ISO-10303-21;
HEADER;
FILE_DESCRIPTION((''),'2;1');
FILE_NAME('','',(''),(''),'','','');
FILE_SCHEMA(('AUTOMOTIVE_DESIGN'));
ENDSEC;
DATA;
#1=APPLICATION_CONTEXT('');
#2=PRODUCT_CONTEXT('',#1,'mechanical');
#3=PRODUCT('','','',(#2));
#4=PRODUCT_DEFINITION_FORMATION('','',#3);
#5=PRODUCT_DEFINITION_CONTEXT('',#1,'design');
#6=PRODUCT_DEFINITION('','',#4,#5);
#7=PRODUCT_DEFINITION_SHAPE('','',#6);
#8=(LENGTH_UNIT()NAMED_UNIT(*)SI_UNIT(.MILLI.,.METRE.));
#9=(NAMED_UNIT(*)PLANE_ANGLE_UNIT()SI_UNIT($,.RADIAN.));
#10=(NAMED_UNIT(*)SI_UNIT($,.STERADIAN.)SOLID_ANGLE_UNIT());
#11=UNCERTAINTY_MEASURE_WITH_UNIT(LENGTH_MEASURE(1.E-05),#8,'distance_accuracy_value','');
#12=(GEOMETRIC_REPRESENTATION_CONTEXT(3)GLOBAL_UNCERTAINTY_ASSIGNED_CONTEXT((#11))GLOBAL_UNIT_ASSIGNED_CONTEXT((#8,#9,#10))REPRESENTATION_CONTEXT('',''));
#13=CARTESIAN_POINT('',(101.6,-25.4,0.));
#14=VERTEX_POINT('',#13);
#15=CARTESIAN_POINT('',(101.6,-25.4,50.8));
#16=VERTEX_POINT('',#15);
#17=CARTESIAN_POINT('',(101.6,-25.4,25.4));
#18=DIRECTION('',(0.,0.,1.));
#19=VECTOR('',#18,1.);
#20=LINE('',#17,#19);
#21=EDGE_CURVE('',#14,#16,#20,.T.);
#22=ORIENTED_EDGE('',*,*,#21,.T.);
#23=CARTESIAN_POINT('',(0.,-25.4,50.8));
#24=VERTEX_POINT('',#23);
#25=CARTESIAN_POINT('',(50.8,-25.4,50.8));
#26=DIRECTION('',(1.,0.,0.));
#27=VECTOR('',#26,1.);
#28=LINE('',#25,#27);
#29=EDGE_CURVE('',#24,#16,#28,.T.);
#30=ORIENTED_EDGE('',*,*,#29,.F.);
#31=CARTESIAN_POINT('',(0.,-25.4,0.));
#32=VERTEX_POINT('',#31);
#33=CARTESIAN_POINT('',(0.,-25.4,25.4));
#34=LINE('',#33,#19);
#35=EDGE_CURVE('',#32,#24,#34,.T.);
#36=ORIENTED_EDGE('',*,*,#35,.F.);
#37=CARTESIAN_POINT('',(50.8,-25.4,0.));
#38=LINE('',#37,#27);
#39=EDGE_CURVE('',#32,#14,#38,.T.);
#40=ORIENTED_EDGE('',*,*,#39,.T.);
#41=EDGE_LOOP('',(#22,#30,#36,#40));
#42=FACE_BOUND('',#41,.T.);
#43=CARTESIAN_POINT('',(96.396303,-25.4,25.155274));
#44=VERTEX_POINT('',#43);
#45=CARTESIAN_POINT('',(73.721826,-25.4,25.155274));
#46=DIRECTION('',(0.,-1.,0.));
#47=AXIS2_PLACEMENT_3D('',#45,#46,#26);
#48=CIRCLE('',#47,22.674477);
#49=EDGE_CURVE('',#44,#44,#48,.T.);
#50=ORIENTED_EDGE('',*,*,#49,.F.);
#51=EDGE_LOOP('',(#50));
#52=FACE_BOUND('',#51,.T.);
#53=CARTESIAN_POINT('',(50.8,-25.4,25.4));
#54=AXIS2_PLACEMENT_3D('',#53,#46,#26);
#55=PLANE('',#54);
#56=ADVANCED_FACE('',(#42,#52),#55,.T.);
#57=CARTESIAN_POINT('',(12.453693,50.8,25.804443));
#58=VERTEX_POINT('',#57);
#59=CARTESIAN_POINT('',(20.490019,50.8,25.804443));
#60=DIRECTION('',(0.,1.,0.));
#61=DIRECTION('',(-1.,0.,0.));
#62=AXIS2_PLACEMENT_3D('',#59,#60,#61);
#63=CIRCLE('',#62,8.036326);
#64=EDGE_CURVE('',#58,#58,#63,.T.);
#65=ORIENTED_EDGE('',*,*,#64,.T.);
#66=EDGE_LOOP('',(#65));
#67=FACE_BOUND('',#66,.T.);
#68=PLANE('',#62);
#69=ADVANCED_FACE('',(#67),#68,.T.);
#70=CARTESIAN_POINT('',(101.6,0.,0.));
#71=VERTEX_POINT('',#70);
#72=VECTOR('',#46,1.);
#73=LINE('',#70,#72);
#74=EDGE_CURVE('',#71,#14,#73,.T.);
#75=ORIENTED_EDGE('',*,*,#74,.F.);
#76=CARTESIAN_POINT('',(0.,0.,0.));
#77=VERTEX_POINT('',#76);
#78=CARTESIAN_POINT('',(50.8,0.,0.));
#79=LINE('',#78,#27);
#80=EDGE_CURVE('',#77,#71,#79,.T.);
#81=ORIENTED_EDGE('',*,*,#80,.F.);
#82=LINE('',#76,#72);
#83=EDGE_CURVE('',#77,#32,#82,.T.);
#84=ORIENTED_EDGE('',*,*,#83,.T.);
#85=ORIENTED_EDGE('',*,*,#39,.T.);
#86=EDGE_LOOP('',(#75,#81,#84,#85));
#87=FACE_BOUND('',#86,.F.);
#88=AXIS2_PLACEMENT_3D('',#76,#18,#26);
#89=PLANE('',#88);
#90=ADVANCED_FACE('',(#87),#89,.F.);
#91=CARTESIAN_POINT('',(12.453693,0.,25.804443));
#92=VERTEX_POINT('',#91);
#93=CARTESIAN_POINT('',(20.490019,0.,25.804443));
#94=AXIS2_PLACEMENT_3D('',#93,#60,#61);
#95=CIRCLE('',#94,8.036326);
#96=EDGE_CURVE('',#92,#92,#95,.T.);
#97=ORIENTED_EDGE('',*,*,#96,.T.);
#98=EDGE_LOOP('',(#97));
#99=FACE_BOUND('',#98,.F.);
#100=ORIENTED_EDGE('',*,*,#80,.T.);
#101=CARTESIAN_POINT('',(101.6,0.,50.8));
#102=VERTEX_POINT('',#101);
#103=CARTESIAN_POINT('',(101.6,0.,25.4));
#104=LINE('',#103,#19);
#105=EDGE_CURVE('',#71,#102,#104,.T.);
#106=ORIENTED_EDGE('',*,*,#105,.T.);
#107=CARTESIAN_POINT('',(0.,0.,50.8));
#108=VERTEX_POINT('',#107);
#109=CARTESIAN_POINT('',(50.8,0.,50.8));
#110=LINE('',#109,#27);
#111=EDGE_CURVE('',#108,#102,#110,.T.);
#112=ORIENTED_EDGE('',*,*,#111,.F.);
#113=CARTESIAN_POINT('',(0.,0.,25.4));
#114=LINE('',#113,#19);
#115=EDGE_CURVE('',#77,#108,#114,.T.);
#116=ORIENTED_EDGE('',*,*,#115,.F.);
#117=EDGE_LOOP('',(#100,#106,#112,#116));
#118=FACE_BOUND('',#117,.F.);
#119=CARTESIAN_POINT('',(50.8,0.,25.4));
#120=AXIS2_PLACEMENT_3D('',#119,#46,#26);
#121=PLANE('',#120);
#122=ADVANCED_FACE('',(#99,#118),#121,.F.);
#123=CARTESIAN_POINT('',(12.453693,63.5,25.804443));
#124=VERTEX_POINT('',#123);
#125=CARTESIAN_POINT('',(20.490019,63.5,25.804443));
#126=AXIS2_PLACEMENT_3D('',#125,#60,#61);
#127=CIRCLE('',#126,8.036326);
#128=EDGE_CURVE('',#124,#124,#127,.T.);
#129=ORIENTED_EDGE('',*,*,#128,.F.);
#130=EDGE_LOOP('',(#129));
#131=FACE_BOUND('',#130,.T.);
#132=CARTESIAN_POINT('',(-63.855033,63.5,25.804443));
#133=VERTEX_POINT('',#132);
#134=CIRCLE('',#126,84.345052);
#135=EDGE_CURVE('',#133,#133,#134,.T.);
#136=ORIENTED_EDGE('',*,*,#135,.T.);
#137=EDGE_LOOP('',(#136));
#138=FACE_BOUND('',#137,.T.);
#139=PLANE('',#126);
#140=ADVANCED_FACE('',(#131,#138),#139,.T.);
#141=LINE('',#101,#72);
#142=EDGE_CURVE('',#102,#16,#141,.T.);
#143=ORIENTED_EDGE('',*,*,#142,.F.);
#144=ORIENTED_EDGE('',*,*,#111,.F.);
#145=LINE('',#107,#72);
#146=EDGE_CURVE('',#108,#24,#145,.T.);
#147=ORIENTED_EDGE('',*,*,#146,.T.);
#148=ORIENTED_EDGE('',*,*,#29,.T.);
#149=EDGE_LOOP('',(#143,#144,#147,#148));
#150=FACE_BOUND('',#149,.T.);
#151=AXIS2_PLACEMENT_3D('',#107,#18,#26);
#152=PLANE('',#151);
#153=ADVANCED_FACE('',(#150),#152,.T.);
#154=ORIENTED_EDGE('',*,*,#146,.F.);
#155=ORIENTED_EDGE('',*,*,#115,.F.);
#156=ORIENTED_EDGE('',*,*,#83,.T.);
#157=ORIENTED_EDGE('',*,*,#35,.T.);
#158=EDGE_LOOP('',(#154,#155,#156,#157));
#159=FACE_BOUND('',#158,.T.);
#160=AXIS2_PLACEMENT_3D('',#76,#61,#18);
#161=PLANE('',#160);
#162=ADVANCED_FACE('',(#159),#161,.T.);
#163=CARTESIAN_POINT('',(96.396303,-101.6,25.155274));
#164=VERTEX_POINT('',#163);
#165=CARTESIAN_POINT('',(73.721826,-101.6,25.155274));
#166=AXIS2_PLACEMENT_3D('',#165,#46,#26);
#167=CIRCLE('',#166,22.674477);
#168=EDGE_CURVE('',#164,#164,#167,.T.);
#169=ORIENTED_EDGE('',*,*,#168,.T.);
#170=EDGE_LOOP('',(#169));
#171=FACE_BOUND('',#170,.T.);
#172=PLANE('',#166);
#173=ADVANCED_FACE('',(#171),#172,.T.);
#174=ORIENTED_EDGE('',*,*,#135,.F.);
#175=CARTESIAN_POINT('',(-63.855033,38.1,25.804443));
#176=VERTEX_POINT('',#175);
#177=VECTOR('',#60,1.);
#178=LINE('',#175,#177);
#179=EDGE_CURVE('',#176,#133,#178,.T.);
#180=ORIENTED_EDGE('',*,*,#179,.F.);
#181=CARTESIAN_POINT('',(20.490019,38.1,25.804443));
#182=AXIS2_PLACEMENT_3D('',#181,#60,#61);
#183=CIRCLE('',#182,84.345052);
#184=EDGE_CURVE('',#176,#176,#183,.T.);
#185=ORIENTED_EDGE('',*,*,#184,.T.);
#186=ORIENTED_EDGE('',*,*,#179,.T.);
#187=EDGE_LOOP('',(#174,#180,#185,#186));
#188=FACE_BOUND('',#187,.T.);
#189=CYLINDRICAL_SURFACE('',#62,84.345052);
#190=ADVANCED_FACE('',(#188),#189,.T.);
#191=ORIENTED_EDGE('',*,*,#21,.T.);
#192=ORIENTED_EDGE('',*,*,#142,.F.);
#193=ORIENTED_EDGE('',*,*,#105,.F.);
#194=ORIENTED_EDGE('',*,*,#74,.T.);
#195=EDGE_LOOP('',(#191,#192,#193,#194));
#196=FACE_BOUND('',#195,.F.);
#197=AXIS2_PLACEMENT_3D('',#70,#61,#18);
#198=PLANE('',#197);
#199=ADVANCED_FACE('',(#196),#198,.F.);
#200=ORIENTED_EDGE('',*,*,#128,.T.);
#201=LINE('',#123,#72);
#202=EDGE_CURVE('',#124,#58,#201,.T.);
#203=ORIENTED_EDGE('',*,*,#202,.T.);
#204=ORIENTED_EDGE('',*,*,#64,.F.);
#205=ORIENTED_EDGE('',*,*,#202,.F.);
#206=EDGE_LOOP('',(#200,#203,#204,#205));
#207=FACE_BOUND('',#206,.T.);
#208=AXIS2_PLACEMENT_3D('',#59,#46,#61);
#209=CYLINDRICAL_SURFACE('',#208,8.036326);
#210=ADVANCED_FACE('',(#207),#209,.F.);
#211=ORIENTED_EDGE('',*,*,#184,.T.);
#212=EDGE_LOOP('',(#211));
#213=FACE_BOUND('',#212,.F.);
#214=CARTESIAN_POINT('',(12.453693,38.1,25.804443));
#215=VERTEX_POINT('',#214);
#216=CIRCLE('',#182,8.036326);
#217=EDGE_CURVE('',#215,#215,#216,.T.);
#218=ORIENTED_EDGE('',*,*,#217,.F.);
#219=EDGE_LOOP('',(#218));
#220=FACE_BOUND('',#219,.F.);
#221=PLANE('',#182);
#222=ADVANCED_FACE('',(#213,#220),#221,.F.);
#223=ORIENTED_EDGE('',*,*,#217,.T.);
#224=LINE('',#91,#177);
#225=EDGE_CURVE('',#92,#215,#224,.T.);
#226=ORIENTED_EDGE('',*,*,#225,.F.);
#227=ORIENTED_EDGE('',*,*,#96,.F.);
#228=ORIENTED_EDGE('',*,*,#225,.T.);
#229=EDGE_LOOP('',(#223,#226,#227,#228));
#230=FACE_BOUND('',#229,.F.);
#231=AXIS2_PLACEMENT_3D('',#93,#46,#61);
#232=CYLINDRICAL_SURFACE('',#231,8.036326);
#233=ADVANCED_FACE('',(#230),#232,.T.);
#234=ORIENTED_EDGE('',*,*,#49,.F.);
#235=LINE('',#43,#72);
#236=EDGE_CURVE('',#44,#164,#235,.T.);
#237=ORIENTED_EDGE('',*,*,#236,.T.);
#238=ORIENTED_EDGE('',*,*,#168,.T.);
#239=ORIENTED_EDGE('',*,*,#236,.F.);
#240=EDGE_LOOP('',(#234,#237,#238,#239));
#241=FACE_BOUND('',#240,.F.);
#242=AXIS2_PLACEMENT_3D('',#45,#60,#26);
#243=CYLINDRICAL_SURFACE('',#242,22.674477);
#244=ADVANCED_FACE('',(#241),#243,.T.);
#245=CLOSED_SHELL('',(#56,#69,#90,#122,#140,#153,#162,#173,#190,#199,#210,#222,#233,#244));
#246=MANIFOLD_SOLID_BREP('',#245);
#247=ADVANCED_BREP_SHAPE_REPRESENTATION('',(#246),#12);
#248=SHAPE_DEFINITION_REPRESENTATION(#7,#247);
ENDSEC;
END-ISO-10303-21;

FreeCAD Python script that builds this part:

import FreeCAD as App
import Part
import Sketcher
from FreeCAD import Vector
Q = App.Units.Quantity


def add_polygon(sketch, points):
    """Adds a closed chain of lines whose ends are joined by coincident constraints."""
    first, n = sketch.GeometryCount, len(points)
    for a, b in zip(points, points[1:] + points[:1]):
        sketch.addGeometry(Part.LineSegment(App.Vector(*a, 0), App.Vector(*b, 0)), False)
    for i in range(n):
        sketch.addConstraint(Sketcher.Constraint("Coincident", first + i, 2, first + (i + 1) % n, 1))

doc = App.newDocument("Part")
body = doc.addObject("PartDesign::Body", "Body")

# Sketch on XZ plane
sketch1 = body.newObject("Sketcher::SketchObject", "Sketch")
sketch1.AttachmentSupport = (doc.getObject("XZ_Plane"), [""])
sketch1.MapMode = "FlatFace"
add_polygon(sketch1, [(0, 51), (0, 0), (102, 0), (102, 51)])  # lines 0-3
sketch1.addConstraint([
    Sketcher.Constraint("Vertical", 0),
    Sketcher.Constraint("Horizontal", 1),
    Sketcher.Constraint("Vertical", 2),
    Sketcher.Constraint("Horizontal", 3),
    Sketcher.Constraint("Coincident", 0, 2, -1, 1),
    Sketcher.Constraint("DistanceX", 1, 1, 1, 2, Q("4 in")),
    Sketcher.Constraint("DistanceY", 0, 2, 0, 1, Q("2 in")),
])
pad1 = body.newObject("PartDesign::Pad", "Pad")
pad1.Profile = sketch1
pad1.Length = Q("1 in")

# Sketch on XZ plane
sketch2 = body.newObject("Sketcher::SketchObject", "Sketch001")
sketch2.AttachmentSupport = (doc.getObject("XZ_Plane"), [""])
sketch2.MapMode = "FlatFace"
sketch2.AttachmentOffset = App.Placement(Vector(0, 0, 1 * 25.4), App.Rotation())
sketch2.addGeometry(Part.Circle(Vector(74, 25, 0), Vector(0, 0, 1), 23), False)
sketch2.addConstraint([
    Sketcher.Constraint("Diameter", 0, Q("45.348954 mm")),
    Sketcher.Constraint("DistanceX", -1, 1, 0, 3, Q("73.721826 mm")),
    Sketcher.Constraint("DistanceY", -1, 1, 0, 3, Q("25.155274 mm")),
])
pad2 = body.newObject("PartDesign::Pad", "Pad001")
pad2.Profile = sketch2
pad2.Length = Q("3 in")

# Sketch on XZ plane
sketch3 = body.newObject("Sketcher::SketchObject", "Sketch002")
sketch3.AttachmentSupport = (doc.getObject("XZ_Plane"), [""])
sketch3.MapMode = "FlatFace"
sketch3.addGeometry(Part.Circle(Vector(20, 26, 0), Vector(0, 0, 1), 8), False)
sketch3.addConstraint([
    Sketcher.Constraint("Diameter", 0, Q("16.072652 mm")),
    Sketcher.Constraint("DistanceX", -1, 1, 0, 3, Q("20.490019 mm")),
    Sketcher.Constraint("DistanceY", -1, 1, 0, 3, Q("25.804443 mm")),
])
pad3 = body.newObject("PartDesign::Pad", "Pad002")
pad3.Profile = sketch3
pad3.Length = Q("2 in")
pad3.Reversed = True

# Sketch on XZ plane
sketch4 = body.newObject("Sketcher::SketchObject", "Sketch003")
sketch4.AttachmentSupport = (doc.getObject("XZ_Plane"), [""])
sketch4.MapMode = "FlatFace"
sketch4.AttachmentOffset = App.Placement(Vector(0, 0, -2 * 25.4), App.Rotation())
sketch4.addGeometry([
    Part.Circle(Vector(20, 26, 0), Vector(0, 0, 1), 84),
    Part.Circle(Vector(20, 26, 0), Vector(0, 0, 1), 8),
], False)
sketch4.addConstraint([
    Sketcher.Constraint("Coincident", 1, 3, 0, 3),
    Sketcher.Constraint("Diameter", 0, Q("168.690104 mm")),
    Sketcher.Constraint("Diameter", 1, Q("16.072652 mm")),
    Sketcher.Constraint("DistanceX", -1, 1, 0, 3, Q("20.490019 mm")),
    Sketcher.Constraint("DistanceY", -1, 1, 0, 3, Q("25.804443 mm")),
])
pad4 = body.newObject("PartDesign::Pad", "Pad003")
pad4.Profile = sketch4
pad4.Length = Q("1 in")
pad4.Midplane = True

doc.recompute()
